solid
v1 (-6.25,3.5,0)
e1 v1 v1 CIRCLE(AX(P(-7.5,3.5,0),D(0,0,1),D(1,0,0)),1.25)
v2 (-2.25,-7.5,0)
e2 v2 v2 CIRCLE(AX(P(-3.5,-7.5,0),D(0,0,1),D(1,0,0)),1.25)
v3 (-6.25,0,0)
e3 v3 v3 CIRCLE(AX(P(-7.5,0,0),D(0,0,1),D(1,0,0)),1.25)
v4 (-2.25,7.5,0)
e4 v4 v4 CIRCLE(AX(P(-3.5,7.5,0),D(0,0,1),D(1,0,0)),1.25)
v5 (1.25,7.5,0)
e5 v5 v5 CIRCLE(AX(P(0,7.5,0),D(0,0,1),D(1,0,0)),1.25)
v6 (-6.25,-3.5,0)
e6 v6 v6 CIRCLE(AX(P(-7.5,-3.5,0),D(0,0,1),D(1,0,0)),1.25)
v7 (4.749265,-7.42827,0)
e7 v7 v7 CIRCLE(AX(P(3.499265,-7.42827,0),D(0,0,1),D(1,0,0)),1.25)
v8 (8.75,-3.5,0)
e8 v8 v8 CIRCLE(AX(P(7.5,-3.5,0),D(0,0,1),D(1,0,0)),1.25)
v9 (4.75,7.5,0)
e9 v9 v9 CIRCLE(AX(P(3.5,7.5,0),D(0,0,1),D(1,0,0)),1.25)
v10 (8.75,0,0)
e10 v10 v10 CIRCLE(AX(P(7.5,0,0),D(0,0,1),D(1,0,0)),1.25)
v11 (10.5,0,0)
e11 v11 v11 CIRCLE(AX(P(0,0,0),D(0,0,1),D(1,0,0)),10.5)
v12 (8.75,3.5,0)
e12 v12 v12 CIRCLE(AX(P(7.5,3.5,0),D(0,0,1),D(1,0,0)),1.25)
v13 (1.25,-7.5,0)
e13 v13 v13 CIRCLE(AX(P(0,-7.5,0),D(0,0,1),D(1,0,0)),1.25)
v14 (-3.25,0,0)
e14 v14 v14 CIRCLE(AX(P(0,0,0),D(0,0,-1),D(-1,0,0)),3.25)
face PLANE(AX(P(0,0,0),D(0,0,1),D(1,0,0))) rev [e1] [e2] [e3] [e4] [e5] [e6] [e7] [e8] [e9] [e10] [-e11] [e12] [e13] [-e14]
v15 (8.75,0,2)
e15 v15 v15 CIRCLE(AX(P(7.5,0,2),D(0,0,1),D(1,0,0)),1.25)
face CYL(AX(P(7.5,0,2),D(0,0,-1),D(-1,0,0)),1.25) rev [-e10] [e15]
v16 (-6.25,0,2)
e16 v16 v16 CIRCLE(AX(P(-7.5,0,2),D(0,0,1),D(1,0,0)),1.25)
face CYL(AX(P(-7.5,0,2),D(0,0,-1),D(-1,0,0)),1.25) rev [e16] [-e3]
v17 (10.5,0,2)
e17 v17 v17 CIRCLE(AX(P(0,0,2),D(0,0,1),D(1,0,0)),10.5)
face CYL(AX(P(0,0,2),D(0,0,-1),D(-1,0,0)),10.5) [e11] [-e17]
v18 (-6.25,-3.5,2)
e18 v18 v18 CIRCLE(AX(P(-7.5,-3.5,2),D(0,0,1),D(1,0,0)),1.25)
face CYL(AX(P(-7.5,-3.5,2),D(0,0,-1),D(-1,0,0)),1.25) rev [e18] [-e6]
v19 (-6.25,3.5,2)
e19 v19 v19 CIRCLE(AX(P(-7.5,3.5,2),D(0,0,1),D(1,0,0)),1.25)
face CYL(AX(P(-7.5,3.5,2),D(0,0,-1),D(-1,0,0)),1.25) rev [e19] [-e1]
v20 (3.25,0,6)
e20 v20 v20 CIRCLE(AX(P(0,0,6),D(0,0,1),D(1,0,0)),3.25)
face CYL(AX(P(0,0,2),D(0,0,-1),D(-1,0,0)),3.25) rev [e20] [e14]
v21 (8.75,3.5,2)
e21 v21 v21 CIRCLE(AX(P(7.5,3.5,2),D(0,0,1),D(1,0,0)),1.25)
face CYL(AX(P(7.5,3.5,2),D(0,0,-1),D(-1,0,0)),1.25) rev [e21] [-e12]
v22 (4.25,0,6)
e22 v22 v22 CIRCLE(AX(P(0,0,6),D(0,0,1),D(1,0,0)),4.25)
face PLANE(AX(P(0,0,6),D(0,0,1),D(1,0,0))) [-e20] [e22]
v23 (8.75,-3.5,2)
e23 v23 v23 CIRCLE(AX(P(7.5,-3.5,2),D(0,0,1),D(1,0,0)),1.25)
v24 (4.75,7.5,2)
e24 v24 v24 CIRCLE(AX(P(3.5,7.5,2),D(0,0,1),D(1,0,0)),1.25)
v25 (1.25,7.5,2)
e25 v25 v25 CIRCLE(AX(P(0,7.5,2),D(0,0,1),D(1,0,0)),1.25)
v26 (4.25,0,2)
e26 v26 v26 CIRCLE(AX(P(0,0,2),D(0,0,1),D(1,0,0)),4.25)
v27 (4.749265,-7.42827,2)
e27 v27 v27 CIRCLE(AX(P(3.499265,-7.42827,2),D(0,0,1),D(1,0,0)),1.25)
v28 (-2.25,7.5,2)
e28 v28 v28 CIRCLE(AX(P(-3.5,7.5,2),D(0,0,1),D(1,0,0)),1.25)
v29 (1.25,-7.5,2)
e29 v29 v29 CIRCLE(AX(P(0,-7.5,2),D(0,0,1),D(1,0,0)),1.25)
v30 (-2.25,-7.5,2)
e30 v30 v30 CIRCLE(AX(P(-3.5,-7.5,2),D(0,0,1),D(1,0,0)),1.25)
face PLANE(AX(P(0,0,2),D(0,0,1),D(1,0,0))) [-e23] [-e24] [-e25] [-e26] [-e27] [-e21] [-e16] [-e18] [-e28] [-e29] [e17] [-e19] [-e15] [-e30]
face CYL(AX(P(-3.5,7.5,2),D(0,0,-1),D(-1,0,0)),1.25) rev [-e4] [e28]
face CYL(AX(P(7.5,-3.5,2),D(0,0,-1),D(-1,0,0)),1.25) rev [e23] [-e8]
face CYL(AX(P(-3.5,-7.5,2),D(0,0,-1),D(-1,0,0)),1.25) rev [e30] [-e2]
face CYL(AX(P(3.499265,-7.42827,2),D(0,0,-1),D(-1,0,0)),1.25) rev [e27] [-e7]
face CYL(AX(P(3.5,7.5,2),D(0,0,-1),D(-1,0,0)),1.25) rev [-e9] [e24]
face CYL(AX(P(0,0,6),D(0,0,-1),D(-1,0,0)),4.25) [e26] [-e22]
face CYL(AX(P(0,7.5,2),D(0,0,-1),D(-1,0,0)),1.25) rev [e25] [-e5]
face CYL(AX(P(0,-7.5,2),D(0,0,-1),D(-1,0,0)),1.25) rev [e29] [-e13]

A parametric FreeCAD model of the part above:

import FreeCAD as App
import Part
import Sketcher
Q = App.Units.Quantity

doc = App.newDocument("Part")
params = doc.addObject("Spreadsheet::Sheet", "Params")
for row, (alias, value) in enumerate([
    ("sketch1_diameter", "21 mm"),
    ("sketch1_diameter2", "2.5 mm"),
    ("pad1_length", "2 mm"),
    ("sketch2_diameter", "2.5 mm"),
    ("pocket1_length", "2 mm"),
    ("sketch3_diameter", "6 mm"),
    ("pocket2_length", "1 mm"),
    ("sketch4_diameter", "6 mm"),
    ("pocket3_length", "5 mm"),
    ("sketch5_diameter", "6 mm"),
    ("pad2_length", "2 mm"),
    ("sketch6_diameter", "6.5 mm"),
    ("pocket4_length", "2 mm"),
    ("sketch7_diameter", "8.5 mm"),
    ("sketch7_diameter2", "6.5 mm"),
    ("pad3_length", "4 mm"),
], start=1):
    params.set(f"A{row}", alias)
    params.set(f"B{row}", "=" + value)
    params.setAlias(f"B{row}", alias)

body = doc.addObject("PartDesign::Body", "Body")

# Sketch on XY plane
sketch1 = body.newObject("Sketcher::SketchObject", "Sketch")
sketch1.AttachmentSupport = (doc.getObject("XY_Plane"), [""])
sketch1.MapMode = "FlatFace"
sketch1.addGeometry(Part.Circle(App.Vector(0, 0, 0), App.Vector(0, 0, 1), 10.5), False)
sketch1.addGeometry(Part.Circle(App.Vector(-3.5, -7.5, 0), App.Vector(0, 0, 1), 1.2), False)
sketch1.addGeometry(Part.Circle(App.Vector(-7.5, -3.5, 0), App.Vector(0, 0, 1), 1.2), False)
sketch1.addGeometry(Part.Circle(App.Vector(0, -7.5, 0), App.Vector(0, 0, 1), 1.2), False)
sketch1.addGeometry(Part.Circle(App.Vector(3.5, -7.4, 0), App.Vector(0, 0, 1), 1.2), False)
sketch1.addGeometry(Part.Circle(App.Vector(7.5, -3.5, 0), App.Vector(0, 0, 1), 1.2), False)
sketch1.addGeometry(Part.Circle(App.Vector(-7.5, 0, 0), App.Vector(0, 0, 1), 1.2), False)
sketch1.addGeometry(Part.Circle(App.Vector(-7.5, 3.5, 0), App.Vector(0, 0, 1), 1.2), False)
sketch1.addGeometry(Part.Circle(App.Vector(-3.5, 7.5, 0), App.Vector(0, 0, 1), 1.2), False)
sketch1.addGeometry(Part.Circle(App.Vector(7.5, 0, 0), App.Vector(0, 0, 1), 1.2), False)
sketch1.addGeometry(Part.Circle(App.Vector(7.5, 3.5, 0), App.Vector(0, 0, 1), 1.2), False)
sketch1.addGeometry(Part.Circle(App.Vector(0, 7.5, 0), App.Vector(0, 0, 1), 1.2), False)
sketch1.addGeometry(Part.Circle(App.Vector(3.5, 7.5, 0), App.Vector(0, 0, 1), 1.2), False)
sketch1.addConstraint(Sketcher.Constraint("Coincident", 0, 3, -1, 1))
sketch1.addConstraint(Sketcher.Constraint("Equal", 1, 2))
sketch1.addConstraint(Sketcher.Constraint("Equal", 2, 3))
sketch1.addConstraint(Sketcher.Constraint("Equal", 3, 4))
sketch1.addConstraint(Sketcher.Constraint("Equal", 4, 5))
sketch1.addConstraint(Sketcher.Constraint("Equal", 5, 6))
sketch1.addConstraint(Sketcher.Constraint("Equal", 6, 7))
sketch1.addConstraint(Sketcher.Constraint("Equal", 7, 8))
sketch1.addConstraint(Sketcher.Constraint("Equal", 8, 9))
sketch1.addConstraint(Sketcher.Constraint("Equal", 9, 10))
sketch1.addConstraint(Sketcher.Constraint("Equal", 10, 11))
sketch1.addConstraint(Sketcher.Constraint("Equal", 11, 12))
sketch1.addConstraint(Sketcher.Constraint("Symmetric", 5, 3, 7, 3, -1, 1))
sketch1.addConstraint(Sketcher.Constraint("Symmetric", 6, 3, 9, 3, -1, 1))
sketch1.addConstraint(Sketcher.Constraint("Symmetric", 2, 3, 10, 3, -1, 1))
sketch1.addConstraint(Sketcher.Constraint("Symmetric", 3, 3, 11, 3, -1, 1))
sketch1.addConstraint(Sketcher.Constraint("Symmetric", 1, 3, 12, 3, -1, 1))
sketch1.addConstraint(Sketcher.Constraint("Symmetric", 2, 3, 5, 3, -2))
sketch1.addConstraint(Sketcher.Constraint("Symmetric", 8, 3, 12, 3, -2))
sketch1.addConstraint(Sketcher.Constraint("PointOnObject", 3, 3, -2))
sketch1.addConstraint(Sketcher.Constraint("PointOnObject", 6, 3, -1))
sketch1.addConstraint(Sketcher.Constraint("Horizontal", 1, 3, 3, 3))
sketch1.addConstraint(Sketcher.Constraint("Vertical", 2, 3, 6, 3))
sketch1.addConstraint(Sketcher.Constraint("Diameter", 0, Q("21 mm")))
sketch1.addConstraint(Sketcher.Constraint("Diameter", 1, Q("2.5 mm")))
sketch1.addConstraint(Sketcher.Constraint("DistanceX", 2, 3, 1, 3, Q("4 mm")))
sketch1.addConstraint(Sketcher.Constraint("DistanceY", 1, 3, 2, 3, Q("4 mm")))
sketch1.addConstraint(Sketcher.Constraint("DistanceX", 1, 3, 5, 3, Q("11 mm")))
sketch1.addConstraint(Sketcher.Constraint("DistanceY", 2, 3, 7, 3, Q("7 mm")))
sketch1.addConstraint(Sketcher.Constraint("DistanceY", 4, 3, -1, 1, Q("7.42827 mm")))
sketch1.addConstraint(Sketcher.Constraint("DistanceX", -1, 1, 4, 3, Q("3.499265 mm")))
sketch1.setExpression("Constraints[23]", "Params.sketch1_diameter")
sketch1.setExpression("Constraints[24]", "Params.sketch1_diameter2")
pad1 = body.newObject("PartDesign::Pad", "Pad")
pad1.Profile = sketch1
pad1.setExpression("Length", "Params.pad1_length")

# Sketch on XY plane
sketch2 = body.newObject("Sketcher::SketchObject", "Sketch001")
sketch2.AttachmentSupport = (doc.getObject("XY_Plane"), [""])
sketch2.MapMode = "FlatFace"
sketch2.addGeometry(Part.Circle(App.Vector(0, 0, 0), App.Vector(0, 0, 1), 1.2), False)
sketch2.addConstraint(Sketcher.Constraint("Coincident", 0, 3, -1, 1))
sketch2.addConstraint(Sketcher.Constraint("Diameter", 0, Q("2.5 mm")))
sketch2.setExpression("Constraints[1]", "Params.sketch2_diameter")
pocket1 = body.newObject("PartDesign::Pocket", "Pocket")
pocket1.Profile = sketch2
pocket1.setExpression("Length", "Params.pocket1_length")
pocket1.Reversed = True

# Sketch on XY plane
sketch3 = body.newObject("Sketcher::SketchObject", "Sketch002")
sketch3.AttachmentSupport = (doc.getObject("XY_Plane"), [""])
sketch3.MapMode = "FlatFace"
sketch3.addGeometry(Part.Circle(App.Vector(0, 0, 0), App.Vector(0, 0, 1), 3), False)
sketch3.addConstraint(Sketcher.Constraint("Coincident", 0, 3, -1, 1))
sketch3.addConstraint(Sketcher.Constraint("Diameter", 0, Q("6 mm")))
sketch3.setExpression("Constraints[1]", "Params.sketch3_diameter")
pocket2 = body.newObject("PartDesign::Pocket", "Pocket001")
pocket2.Profile = sketch3
pocket2.setExpression("Length", "Params.pocket2_length")
pocket2.Reversed = True

# Sketch on XY plane
sketch4 = body.newObject("Sketcher::SketchObject", "Sketch003")
sketch4.AttachmentSupport = (doc.getObject("XY_Plane"), [""])
sketch4.MapMode = "FlatFace"
sketch4.addGeometry(Part.Circle(App.Vector(0, 0, 0), App.Vector(0, 0, 1), 3), False)
sketch4.addConstraint(Sketcher.Constraint("Coincident", 0, 3, -1, 1))
sketch4.addConstraint(Sketcher.Constraint("Diameter", 0, Q("6 mm")))
sketch4.setExpression("Constraints[1]", "Params.sketch4_diameter")
pocket3 = body.newObject("PartDesign::Pocket", "Pocket002")
pocket3.Profile = sketch4
pocket3.setExpression("Length", "Params.pocket3_length")
pocket3.Reversed = True

# Sketch on XY plane
sketch5 = body.newObject("Sketcher::SketchObject", "Sketch004")
sketch5.AttachmentSupport = (doc.getObject("XY_Plane"), [""])
sketch5.MapMode = "FlatFace"
sketch5.addGeometry(Part.Circle(App.Vector(0, 0, 0), App.Vector(0, 0, 1), 3), False)
sketch5.addConstraint(Sketcher.Constraint("Coincident", 0, 3, -1, 1))
sketch5.addConstraint(Sketcher.Constraint("Diameter", 0, Q("6 mm")))
sketch5.setExpression("Constraints[1]", "Params.sketch5_diameter")
pad2 = body.newObject("PartDesign::Pad", "Pad001")
pad2.Profile = sketch5
pad2.setExpression("Length", "Params.pad2_length")

# Sketch on XY plane
sketch6 = body.newObject("Sketcher::SketchObject", "Sketch005")
sketch6.AttachmentSupport = (doc.getObject("XY_Plane"), [""])
sketch6.MapMode = "FlatFace"
sketch6.addGeometry(Part.Circle(App.Vector(0, 0, 0), App.Vector(0, 0, 1), 3.2), False)
sketch6.addConstraint(Sketcher.Constraint("Coincident", 0, 3, -1, 1))
sketch6.addConstraint(Sketcher.Constraint("Diameter", 0, Q("6.5 mm")))
sketch6.setExpression("Constraints[1]", "Params.sketch6_diameter")
pocket4 = body.newObject("PartDesign::Pocket", "Pocket003")
pocket4.Profile = sketch6
pocket4.setExpression("Length", "Params.pocket4_length")
pocket4.Reversed = True

# Sketch on XY plane
sketch7 = body.newObject("Sketcher::SketchObject", "Sketch006")
sketch7.AttachmentSupport = (doc.getObject("XY_Plane"), [""])
sketch7.MapMode = "FlatFace"
sketch7.AttachmentOffset = App.Placement(App.Vector(0, 0, 2), App.Rotation())
sketch7.addGeometry(Part.Circle(App.Vector(0, 0, 0), App.Vector(0, 0, 1), 4.2), False)
sketch7.addGeometry(Part.Circle(App.Vector(0, 0, 0), App.Vector(0, 0, 1), 3.2), False)
sketch7.addConstraint(Sketcher.Constraint("Coincident", 0, 3, -1, 1))
sketch7.addConstraint(Sketcher.Constraint("Coincident", 1, 3, -1, 1))
sketch7.addConstraint(Sketcher.Constraint("Diameter", 0, Q("8.5 mm")))
sketch7.addConstraint(Sketcher.Constraint("Diameter", 1, Q("6.5 mm")))
sketch7.setExpression("Constraints[2]", "Params.sketch7_diameter")
sketch7.setExpression("Constraints[3]", "Params.sketch7_diameter2")
pad3 = body.newObject("PartDesign::Pad", "Pad002")
pad3.Profile = sketch7
pad3.setExpression("Length", "Params.pad3_length")

doc.recompute()
